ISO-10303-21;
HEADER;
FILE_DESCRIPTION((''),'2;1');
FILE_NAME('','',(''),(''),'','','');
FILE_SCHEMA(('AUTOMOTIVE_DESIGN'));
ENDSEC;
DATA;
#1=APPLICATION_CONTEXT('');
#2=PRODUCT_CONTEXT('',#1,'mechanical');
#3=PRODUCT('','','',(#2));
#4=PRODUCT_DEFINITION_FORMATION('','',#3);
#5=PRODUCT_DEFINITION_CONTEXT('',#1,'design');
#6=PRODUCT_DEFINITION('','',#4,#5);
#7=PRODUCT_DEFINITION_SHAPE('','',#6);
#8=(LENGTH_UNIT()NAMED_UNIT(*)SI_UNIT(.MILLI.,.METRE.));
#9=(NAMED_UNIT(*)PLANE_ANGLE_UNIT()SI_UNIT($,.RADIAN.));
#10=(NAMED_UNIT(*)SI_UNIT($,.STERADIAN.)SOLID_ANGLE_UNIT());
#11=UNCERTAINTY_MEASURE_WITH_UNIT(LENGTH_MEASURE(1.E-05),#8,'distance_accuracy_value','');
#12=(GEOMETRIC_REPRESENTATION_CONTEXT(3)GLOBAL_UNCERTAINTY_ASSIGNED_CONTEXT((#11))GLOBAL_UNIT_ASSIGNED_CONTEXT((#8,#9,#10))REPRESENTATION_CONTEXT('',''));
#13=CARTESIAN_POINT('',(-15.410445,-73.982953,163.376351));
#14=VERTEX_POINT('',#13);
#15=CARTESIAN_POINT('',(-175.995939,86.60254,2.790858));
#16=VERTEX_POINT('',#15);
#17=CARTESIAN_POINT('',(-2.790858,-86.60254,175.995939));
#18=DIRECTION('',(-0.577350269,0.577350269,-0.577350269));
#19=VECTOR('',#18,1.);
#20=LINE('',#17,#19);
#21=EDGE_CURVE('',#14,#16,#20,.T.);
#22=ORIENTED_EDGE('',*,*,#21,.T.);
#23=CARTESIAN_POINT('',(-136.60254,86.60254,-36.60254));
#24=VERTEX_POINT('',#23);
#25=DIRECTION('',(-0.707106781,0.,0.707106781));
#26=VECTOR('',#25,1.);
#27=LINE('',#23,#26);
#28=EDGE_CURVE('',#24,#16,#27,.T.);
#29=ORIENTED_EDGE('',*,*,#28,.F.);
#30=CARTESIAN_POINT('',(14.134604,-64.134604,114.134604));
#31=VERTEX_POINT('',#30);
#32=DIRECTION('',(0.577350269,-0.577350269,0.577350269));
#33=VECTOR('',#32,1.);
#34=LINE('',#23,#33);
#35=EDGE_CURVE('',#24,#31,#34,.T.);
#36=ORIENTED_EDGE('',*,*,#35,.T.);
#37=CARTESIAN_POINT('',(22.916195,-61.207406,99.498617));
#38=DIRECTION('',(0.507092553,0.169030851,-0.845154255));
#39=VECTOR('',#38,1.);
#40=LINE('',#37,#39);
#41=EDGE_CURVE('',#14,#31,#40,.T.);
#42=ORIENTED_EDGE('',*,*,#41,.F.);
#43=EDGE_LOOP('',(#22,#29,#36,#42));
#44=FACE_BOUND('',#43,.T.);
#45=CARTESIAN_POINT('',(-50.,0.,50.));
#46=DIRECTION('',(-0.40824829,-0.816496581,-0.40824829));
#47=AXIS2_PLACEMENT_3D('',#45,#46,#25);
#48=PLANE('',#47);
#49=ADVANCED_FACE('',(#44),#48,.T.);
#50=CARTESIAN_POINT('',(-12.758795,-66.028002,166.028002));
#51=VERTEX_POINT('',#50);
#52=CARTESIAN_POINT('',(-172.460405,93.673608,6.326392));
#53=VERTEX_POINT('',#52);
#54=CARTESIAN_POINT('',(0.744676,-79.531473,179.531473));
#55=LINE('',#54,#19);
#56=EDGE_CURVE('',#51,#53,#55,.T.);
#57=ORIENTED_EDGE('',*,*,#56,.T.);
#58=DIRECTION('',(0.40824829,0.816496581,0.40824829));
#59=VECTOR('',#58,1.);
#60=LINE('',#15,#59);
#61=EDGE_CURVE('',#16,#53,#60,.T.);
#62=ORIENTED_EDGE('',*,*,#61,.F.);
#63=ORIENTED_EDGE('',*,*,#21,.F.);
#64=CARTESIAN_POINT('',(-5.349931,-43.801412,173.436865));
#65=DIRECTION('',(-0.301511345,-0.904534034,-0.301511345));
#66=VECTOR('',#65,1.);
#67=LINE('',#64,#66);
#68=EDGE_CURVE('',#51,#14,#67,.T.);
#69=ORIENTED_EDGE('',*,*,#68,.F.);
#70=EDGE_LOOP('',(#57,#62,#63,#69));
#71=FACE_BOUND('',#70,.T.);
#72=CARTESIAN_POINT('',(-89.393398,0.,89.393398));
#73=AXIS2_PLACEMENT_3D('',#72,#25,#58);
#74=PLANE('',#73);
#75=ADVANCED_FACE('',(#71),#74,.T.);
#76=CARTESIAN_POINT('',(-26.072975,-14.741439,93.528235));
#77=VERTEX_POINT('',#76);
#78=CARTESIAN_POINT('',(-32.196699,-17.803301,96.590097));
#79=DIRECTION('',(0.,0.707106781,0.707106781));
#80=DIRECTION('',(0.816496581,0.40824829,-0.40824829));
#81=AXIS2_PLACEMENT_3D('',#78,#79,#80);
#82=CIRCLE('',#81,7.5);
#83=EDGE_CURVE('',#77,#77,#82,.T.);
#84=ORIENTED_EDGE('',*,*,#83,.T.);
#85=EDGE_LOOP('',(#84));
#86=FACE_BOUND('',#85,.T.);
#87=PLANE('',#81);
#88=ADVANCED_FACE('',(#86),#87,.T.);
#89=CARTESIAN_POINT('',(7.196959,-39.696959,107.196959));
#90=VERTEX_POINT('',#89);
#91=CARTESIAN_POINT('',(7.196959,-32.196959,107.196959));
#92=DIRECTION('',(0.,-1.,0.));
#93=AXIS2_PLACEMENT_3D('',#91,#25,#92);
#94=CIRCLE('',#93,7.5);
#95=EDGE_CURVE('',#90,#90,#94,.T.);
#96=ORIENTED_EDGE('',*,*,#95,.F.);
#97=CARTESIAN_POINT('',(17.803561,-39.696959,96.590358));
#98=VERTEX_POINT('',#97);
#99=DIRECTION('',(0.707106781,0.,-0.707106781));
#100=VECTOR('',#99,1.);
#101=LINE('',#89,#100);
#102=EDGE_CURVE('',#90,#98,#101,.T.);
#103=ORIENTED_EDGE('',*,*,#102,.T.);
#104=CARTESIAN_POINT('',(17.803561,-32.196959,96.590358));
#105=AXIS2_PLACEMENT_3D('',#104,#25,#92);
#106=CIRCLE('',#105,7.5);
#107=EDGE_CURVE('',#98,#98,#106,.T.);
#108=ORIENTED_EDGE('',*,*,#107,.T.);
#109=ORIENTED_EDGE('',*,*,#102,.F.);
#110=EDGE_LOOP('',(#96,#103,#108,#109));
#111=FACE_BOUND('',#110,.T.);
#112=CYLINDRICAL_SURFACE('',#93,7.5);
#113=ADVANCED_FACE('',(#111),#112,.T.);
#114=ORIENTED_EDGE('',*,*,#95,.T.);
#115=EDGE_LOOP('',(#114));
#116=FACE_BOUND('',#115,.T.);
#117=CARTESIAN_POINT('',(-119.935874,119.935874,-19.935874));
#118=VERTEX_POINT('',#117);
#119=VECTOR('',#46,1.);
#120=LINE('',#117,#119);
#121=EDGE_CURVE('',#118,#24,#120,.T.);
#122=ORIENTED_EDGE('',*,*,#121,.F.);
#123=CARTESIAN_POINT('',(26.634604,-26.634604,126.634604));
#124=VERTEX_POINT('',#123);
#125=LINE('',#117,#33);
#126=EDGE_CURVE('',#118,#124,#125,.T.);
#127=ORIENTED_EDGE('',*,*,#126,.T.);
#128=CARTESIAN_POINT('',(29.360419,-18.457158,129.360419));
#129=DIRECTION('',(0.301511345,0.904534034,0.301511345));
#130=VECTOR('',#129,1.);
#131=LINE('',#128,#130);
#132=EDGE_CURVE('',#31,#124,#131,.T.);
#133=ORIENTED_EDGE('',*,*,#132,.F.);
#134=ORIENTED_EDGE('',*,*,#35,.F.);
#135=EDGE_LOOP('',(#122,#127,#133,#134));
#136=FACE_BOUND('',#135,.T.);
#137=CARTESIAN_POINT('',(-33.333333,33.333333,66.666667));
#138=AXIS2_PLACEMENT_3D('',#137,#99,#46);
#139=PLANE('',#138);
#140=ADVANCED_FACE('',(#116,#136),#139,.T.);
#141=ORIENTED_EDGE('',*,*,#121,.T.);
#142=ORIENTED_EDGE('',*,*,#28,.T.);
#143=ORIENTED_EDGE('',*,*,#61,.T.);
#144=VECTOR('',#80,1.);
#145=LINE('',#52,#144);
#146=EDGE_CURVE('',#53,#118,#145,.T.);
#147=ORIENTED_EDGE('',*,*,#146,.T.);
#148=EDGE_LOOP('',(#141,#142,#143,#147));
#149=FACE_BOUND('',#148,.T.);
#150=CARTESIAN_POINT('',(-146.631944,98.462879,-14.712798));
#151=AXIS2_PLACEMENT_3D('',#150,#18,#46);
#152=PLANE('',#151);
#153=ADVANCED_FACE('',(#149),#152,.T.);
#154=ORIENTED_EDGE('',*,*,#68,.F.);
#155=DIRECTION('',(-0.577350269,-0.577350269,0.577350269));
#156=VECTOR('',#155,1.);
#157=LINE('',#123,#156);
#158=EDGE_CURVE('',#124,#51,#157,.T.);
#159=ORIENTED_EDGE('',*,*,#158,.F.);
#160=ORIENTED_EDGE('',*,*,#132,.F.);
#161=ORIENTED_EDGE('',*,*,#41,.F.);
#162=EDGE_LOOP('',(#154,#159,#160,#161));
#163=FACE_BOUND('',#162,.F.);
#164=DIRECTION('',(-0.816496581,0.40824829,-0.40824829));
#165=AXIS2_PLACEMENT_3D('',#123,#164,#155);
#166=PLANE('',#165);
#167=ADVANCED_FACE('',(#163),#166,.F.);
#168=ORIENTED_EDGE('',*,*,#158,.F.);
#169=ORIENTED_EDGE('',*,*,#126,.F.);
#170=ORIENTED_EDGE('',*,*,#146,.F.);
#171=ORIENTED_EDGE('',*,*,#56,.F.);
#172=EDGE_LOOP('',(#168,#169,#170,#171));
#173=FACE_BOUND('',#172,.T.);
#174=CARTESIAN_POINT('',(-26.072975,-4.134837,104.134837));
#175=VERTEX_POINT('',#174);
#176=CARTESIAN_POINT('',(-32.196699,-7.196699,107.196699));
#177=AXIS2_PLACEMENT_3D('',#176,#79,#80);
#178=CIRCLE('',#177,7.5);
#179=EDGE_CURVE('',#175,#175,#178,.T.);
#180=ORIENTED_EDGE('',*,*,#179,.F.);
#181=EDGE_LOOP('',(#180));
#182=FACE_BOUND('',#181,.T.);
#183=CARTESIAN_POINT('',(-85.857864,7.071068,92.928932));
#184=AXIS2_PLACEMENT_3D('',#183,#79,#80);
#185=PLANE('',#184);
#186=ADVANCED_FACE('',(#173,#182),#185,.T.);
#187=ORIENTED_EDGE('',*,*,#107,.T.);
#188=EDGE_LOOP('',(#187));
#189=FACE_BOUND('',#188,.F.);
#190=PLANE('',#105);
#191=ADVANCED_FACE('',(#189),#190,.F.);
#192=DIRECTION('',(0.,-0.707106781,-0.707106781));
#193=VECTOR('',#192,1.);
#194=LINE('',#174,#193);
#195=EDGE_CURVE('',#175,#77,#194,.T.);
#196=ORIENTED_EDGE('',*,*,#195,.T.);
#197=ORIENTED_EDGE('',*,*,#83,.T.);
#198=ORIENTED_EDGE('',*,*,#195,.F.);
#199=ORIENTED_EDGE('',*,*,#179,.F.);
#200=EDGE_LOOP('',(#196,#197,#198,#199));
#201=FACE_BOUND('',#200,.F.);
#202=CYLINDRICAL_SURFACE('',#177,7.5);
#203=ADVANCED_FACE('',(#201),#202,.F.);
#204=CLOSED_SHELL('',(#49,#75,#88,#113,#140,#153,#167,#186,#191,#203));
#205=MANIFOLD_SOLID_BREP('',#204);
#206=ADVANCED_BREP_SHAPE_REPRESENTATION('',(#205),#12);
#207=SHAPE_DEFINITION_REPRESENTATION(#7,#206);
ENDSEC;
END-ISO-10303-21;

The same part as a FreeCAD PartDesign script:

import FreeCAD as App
import Part
import Sketcher
Q = App.Units.Quantity

doc = App.newDocument("Part")
body = doc.addObject("PartDesign::Body", "Body")

# Sketch on an angled plane
sketch1 = doc.addObject("Sketcher::SketchObject", "Sketch")
body.addObject(sketch1)
sketch1.Placement = App.Placement(App.Vector(0, -50, 50), App.Rotation(App.Vector(0.816496581, -0.40824829, -0.40824829), App.Vector(0, -0.707106781, 0.707106781), App.Vector(-0.577350269, -0.577350269, -0.577350269), "ZXY"))
sketch1.addGeometry(Part.LineSegment(App.Vector(0, 0, 0), App.Vector(0, 56, 0)), False)
sketch1.addGeometry(Part.LineSegment(App.Vector(0, 56, 0), App.Vector(-9, 56, 0)), False)
sketch1.addGeometry(Part.LineSegment(App.Vector(-9, 56, 0), App.Vector(-41, 0, 0)), False)
sketch1.addGeometry(Part.LineSegment(App.Vector(-41, 0, 0), App.Vector(0, 0, 0)), False)
sketch1.addConstraint(Sketcher.Constraint("Coincident", 0, 2, 1, 1))
sketch1.addConstraint(Sketcher.Constraint("Coincident", 1, 2, 2, 1))
sketch1.addConstraint(Sketcher.Constraint("Coincident", 2, 2, 3, 1))
sketch1.addConstraint(Sketcher.Constraint("Coincident", 3, 2, 0, 1))
sketch1.addConstraint(Sketcher.Constraint("Vertical", 0))
sketch1.addConstraint(Sketcher.Constraint("Horizontal", 1))
sketch1.addConstraint(Sketcher.Constraint("Horizontal", 3))
sketch1.addConstraint(Sketcher.Constraint("Coincident", 3, 2, -1, 1))
sketch1.addConstraint(Sketcher.Constraint("Angle", 2, Q("-120 deg")))
sketch1.addConstraint(Sketcher.Constraint("DistanceX", 3, 1, 3, 2, 40.824829))
sketch1.addConstraint(Sketcher.Constraint("DistanceY", 0, 1, 0, 2, 55.710678))
pad1 = doc.addObject("PartDesign::Pad", "Pad")
body.addObject(pad1)
pad1.Profile = sketch1
pad1.Length = 300
pad1.Midplane = True

# Sketch on an angled plane
sketch2 = doc.addObject("Sketcher::SketchObject", "Sketch001")
body.addObject(sketch2)
sketch2.Placement = App.Placement(App.Vector(0, -50, 50), App.Rotation(App.Vector(1, 0, 0), App.Vector(0, 0.707106781, 0.707106781), App.Vector(0, -0.707106781, 0.707106781), "ZXY"))
sketch2.addGeometry(Part.Circle(App.Vector(32, 81, 0), App.Vector(0, 0, 1), 8), False)
sketch2.addConstraint(Sketcher.Constraint("Diameter", 0, 15.0))
sketch2.addConstraint(Sketcher.Constraint("DistanceX", -1, 1, 0, 3, 32.196959))
sketch2.addConstraint(Sketcher.Constraint("DistanceY", -1, 1, 0, 3, 80.888716))
pad2 = doc.addObject("PartDesign::Pad", "Pad001")
body.addObject(pad2)
pad2.Profile = sketch2
pad2.Length = 15
pad2.Reversed = True

# Sketch on an angled plane
sketch3 = doc.addObject("Sketcher::SketchObject", "Sketch002")
body.addObject(sketch3)
sketch3.Placement = App.Placement(App.Vector(-25, -50, 75), App.Rotation(App.Vector(-0.40824829, 0.816496581, -0.40824829), App.Vector(-0.577350269, -0.577350268, -0.577350269), App.Vector(-0.707106781, 0, 0.707106781), "ZXY"))
sketch3.addGeometry(Part.Circle(App.Vector(-12, -47, 0), App.Vector(0, 0, 1), 8), False)
sketch3.addConstraint(Sketcher.Constraint("Diameter", 0, 15.0))
sketch3.addConstraint(Sketcher.Constraint("DistanceX", 0, 3, -1, 1, 11.75216))
sketch3.addConstraint(Sketcher.Constraint("DistanceY", 0, 3, -1, 1, 47.456286))
pocket1 = doc.addObject("PartDesign::Pocket", "Pocket")
body.addObject(pocket1)
pocket1.Profile = sketch3
pocket1.Length = 15

# Sketch on an angled plane
sketch4 = doc.addObject("Sketcher::SketchObject", "Sketch003")
body.addObject(sketch4)
sketch4.Placement = App.Placement(App.Vector(-25, -50, 75), App.Rotation(App.Vector(-0.40824829, 0.816496581, -0.40824829), App.Vector(-0.577350269, -0.577350268, -0.577350269), App.Vector(-0.707106781, 0, 0.707106781), "ZXY"))
sketch4.addGeometry(Part.LineSegment(App.Vector(20, -104, 0), App.Vector(-48, -128, 0)), False)
sketch4.addGeometry(Part.LineSegment(App.Vector(-48, -128, 0), App.Vector(-48, -150, 0)), False)
sketch4.addGeometry(Part.LineSegment(App.Vector(-48, -150, 0), App.Vector(20, -150, 0)), False)
sketch4.addGeometry(Part.LineSegment(App.Vector(20, -150, 0), App.Vector(20, -104, 0)), False)
sketch4.addConstraint(Sketcher.Constraint("Coincident", 0, 2, 1, 1))
sketch4.addConstraint(Sketcher.Constraint("Coincident", 1, 2, 2, 1))
sketch4.addConstraint(Sketcher.Constraint("Coincident", 2, 2, 3, 1))
sketch4.addConstraint(Sketcher.Constraint("Coincident", 3, 2, 0, 1))
sketch4.addConstraint(Sketcher.Constraint("Vertical", 1))
sketch4.addConstraint(Sketcher.Constraint("Horizontal", 2))
sketch4.addConstraint(Sketcher.Constraint("Vertical", 3))
sketch4.addConstraint(Sketcher.Constraint("DistanceY", 1, 2, -1, 1, 150.0))
sketch4.addConstraint(Sketcher.Constraint("Distance", 0, 72.824161))
sketch4.addConstraint(Sketcher.Constraint("DistanceX", 2, 1, 2, 2, 68.659277))
sketch4.addConstraint(Sketcher.Constraint("DistanceY", 1, 2, 1, 1, 21.857766))
sketch4.addConstraint(Sketcher.Constraint("DistanceX", 0, 2, -1, 1, 48.246862))
pocket2 = doc.addObject("PartDesign::Pocket", "Pocket001")
body.addObject(pocket2)
pocket2.Profile = sketch4
pocket2.Length = 50
body2 = doc.addObject("PartDesign::Body", "Body001")
doc.recompute()

body.Placement = App.Placement(App.Vector(0, 0, 0), App.Rotation(App.Vector(0, 0, 1), 270))
boolean = doc.addObject("PartDesign::Boolean", "Boolean")
body2.addObject(boolean)
boolean.Type = "Fuse"
boolean.addObjects([body])

doc.recompute()
